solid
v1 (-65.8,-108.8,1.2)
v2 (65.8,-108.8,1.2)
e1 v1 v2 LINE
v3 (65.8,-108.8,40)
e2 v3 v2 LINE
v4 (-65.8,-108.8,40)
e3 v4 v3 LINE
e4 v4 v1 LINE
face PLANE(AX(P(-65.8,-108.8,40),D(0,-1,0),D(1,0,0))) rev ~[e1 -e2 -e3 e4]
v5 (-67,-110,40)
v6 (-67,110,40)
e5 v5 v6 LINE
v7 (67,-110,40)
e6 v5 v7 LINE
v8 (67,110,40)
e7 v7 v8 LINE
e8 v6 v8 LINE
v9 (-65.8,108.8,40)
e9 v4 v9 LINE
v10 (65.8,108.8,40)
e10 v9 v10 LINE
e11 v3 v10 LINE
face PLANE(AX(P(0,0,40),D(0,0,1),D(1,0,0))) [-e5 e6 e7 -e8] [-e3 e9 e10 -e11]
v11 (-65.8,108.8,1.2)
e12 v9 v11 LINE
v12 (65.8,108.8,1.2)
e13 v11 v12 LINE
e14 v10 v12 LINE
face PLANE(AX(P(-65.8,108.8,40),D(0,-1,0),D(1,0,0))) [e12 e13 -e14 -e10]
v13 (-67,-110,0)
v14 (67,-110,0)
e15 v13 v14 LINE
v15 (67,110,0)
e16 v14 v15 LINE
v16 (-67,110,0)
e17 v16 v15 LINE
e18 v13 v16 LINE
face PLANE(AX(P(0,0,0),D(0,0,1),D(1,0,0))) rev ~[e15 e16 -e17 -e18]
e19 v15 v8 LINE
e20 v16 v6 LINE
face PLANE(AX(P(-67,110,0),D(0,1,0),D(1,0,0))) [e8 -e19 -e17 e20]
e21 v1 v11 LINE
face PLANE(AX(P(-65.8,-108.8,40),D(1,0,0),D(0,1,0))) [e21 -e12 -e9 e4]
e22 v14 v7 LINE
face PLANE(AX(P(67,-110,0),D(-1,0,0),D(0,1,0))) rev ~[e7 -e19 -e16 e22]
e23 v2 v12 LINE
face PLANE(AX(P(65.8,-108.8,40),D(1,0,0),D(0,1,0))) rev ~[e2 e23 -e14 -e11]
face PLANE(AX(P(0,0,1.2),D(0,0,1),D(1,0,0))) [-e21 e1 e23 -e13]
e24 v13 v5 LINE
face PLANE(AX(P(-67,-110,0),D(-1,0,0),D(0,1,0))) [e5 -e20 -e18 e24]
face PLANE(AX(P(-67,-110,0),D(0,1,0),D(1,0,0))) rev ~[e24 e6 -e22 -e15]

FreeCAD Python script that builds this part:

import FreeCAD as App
import Part
import Sketcher

V = App.Vector


def add_polygon(sketch, points):
    """Adds a closed chain of lines whose ends are joined by coincident constraints."""
    first, n = sketch.GeometryCount, len(points)
    for a, b in zip(points, points[1:] + points[:1]):
        sketch.addGeometry(Part.LineSegment(App.Vector(*a, 0), App.Vector(*b, 0)), False)
    for i in range(n):
        sketch.addConstraint(Sketcher.Constraint("Coincident", first + i, 2, first + (i + 1) % n, 1))

doc = App.newDocument("Part")
body = doc.addObject("PartDesign::Body", "Body")

# Sketch on XY plane
sketch1 = body.newObject("Sketcher::SketchObject", "Sketch")
sketch1.AttachmentSupport = (doc.getObject("XY_Plane"), [""])
sketch1.MapMode = "FlatFace"
add_polygon(sketch1, [(-67, 110), (-67, -110), (67, -110), (67, 110)])  # lines 0-3
sketch1.addConstraint([
    Sketcher.Constraint("Vertical", 0),
    Sketcher.Constraint("Horizontal", 1),
    Sketcher.Constraint("Vertical", 2),
    Sketcher.Constraint("Horizontal", 3),
    Sketcher.Constraint("Symmetric", 0, 2, 2, 2, -1, 1),
    Sketcher.Constraint("DistanceX", 1, 1, 1, 2, 134.0),
    Sketcher.Constraint("DistanceY", 0, 2, 0, 1, 220.0),
])
pad1 = body.newObject("PartDesign::Pad", "Pad")
pad1.Profile = sketch1
pad1.Length = 40

# Sketch on XY plane
sketch2 = body.newObject("Sketcher::SketchObject", "Sketch001")
sketch2.AttachmentSupport = (doc.getObject("XY_Plane"), [""])
sketch2.MapMode = "FlatFace"
sketch2.AttachmentOffset = App.Placement(V(0, 0, 40), App.Rotation())
add_polygon(sketch2, [(-66, 109), (-66, -109), (66, -109), (66, 109)])  # lines 0-3
sketch2.addConstraint([
    Sketcher.Constraint("Vertical", 0),
    Sketcher.Constraint("Horizontal", 1),
    Sketcher.Constraint("Vertical", 2),
    Sketcher.Constraint("Horizontal", 3),
    Sketcher.Constraint("Symmetric", 0, 2, 2, 2, -1, 1),
    Sketcher.Constraint("DistanceX", 1, 1, 1, 2, 131.6),
    Sketcher.Constraint("DistanceY", 0, 2, 0, 1, 217.6),
])
pocket1 = body.newObject("PartDesign::Pocket", "Pocket")
pocket1.Profile = sketch2
pocket1.Length = 38.8

doc.recompute()
